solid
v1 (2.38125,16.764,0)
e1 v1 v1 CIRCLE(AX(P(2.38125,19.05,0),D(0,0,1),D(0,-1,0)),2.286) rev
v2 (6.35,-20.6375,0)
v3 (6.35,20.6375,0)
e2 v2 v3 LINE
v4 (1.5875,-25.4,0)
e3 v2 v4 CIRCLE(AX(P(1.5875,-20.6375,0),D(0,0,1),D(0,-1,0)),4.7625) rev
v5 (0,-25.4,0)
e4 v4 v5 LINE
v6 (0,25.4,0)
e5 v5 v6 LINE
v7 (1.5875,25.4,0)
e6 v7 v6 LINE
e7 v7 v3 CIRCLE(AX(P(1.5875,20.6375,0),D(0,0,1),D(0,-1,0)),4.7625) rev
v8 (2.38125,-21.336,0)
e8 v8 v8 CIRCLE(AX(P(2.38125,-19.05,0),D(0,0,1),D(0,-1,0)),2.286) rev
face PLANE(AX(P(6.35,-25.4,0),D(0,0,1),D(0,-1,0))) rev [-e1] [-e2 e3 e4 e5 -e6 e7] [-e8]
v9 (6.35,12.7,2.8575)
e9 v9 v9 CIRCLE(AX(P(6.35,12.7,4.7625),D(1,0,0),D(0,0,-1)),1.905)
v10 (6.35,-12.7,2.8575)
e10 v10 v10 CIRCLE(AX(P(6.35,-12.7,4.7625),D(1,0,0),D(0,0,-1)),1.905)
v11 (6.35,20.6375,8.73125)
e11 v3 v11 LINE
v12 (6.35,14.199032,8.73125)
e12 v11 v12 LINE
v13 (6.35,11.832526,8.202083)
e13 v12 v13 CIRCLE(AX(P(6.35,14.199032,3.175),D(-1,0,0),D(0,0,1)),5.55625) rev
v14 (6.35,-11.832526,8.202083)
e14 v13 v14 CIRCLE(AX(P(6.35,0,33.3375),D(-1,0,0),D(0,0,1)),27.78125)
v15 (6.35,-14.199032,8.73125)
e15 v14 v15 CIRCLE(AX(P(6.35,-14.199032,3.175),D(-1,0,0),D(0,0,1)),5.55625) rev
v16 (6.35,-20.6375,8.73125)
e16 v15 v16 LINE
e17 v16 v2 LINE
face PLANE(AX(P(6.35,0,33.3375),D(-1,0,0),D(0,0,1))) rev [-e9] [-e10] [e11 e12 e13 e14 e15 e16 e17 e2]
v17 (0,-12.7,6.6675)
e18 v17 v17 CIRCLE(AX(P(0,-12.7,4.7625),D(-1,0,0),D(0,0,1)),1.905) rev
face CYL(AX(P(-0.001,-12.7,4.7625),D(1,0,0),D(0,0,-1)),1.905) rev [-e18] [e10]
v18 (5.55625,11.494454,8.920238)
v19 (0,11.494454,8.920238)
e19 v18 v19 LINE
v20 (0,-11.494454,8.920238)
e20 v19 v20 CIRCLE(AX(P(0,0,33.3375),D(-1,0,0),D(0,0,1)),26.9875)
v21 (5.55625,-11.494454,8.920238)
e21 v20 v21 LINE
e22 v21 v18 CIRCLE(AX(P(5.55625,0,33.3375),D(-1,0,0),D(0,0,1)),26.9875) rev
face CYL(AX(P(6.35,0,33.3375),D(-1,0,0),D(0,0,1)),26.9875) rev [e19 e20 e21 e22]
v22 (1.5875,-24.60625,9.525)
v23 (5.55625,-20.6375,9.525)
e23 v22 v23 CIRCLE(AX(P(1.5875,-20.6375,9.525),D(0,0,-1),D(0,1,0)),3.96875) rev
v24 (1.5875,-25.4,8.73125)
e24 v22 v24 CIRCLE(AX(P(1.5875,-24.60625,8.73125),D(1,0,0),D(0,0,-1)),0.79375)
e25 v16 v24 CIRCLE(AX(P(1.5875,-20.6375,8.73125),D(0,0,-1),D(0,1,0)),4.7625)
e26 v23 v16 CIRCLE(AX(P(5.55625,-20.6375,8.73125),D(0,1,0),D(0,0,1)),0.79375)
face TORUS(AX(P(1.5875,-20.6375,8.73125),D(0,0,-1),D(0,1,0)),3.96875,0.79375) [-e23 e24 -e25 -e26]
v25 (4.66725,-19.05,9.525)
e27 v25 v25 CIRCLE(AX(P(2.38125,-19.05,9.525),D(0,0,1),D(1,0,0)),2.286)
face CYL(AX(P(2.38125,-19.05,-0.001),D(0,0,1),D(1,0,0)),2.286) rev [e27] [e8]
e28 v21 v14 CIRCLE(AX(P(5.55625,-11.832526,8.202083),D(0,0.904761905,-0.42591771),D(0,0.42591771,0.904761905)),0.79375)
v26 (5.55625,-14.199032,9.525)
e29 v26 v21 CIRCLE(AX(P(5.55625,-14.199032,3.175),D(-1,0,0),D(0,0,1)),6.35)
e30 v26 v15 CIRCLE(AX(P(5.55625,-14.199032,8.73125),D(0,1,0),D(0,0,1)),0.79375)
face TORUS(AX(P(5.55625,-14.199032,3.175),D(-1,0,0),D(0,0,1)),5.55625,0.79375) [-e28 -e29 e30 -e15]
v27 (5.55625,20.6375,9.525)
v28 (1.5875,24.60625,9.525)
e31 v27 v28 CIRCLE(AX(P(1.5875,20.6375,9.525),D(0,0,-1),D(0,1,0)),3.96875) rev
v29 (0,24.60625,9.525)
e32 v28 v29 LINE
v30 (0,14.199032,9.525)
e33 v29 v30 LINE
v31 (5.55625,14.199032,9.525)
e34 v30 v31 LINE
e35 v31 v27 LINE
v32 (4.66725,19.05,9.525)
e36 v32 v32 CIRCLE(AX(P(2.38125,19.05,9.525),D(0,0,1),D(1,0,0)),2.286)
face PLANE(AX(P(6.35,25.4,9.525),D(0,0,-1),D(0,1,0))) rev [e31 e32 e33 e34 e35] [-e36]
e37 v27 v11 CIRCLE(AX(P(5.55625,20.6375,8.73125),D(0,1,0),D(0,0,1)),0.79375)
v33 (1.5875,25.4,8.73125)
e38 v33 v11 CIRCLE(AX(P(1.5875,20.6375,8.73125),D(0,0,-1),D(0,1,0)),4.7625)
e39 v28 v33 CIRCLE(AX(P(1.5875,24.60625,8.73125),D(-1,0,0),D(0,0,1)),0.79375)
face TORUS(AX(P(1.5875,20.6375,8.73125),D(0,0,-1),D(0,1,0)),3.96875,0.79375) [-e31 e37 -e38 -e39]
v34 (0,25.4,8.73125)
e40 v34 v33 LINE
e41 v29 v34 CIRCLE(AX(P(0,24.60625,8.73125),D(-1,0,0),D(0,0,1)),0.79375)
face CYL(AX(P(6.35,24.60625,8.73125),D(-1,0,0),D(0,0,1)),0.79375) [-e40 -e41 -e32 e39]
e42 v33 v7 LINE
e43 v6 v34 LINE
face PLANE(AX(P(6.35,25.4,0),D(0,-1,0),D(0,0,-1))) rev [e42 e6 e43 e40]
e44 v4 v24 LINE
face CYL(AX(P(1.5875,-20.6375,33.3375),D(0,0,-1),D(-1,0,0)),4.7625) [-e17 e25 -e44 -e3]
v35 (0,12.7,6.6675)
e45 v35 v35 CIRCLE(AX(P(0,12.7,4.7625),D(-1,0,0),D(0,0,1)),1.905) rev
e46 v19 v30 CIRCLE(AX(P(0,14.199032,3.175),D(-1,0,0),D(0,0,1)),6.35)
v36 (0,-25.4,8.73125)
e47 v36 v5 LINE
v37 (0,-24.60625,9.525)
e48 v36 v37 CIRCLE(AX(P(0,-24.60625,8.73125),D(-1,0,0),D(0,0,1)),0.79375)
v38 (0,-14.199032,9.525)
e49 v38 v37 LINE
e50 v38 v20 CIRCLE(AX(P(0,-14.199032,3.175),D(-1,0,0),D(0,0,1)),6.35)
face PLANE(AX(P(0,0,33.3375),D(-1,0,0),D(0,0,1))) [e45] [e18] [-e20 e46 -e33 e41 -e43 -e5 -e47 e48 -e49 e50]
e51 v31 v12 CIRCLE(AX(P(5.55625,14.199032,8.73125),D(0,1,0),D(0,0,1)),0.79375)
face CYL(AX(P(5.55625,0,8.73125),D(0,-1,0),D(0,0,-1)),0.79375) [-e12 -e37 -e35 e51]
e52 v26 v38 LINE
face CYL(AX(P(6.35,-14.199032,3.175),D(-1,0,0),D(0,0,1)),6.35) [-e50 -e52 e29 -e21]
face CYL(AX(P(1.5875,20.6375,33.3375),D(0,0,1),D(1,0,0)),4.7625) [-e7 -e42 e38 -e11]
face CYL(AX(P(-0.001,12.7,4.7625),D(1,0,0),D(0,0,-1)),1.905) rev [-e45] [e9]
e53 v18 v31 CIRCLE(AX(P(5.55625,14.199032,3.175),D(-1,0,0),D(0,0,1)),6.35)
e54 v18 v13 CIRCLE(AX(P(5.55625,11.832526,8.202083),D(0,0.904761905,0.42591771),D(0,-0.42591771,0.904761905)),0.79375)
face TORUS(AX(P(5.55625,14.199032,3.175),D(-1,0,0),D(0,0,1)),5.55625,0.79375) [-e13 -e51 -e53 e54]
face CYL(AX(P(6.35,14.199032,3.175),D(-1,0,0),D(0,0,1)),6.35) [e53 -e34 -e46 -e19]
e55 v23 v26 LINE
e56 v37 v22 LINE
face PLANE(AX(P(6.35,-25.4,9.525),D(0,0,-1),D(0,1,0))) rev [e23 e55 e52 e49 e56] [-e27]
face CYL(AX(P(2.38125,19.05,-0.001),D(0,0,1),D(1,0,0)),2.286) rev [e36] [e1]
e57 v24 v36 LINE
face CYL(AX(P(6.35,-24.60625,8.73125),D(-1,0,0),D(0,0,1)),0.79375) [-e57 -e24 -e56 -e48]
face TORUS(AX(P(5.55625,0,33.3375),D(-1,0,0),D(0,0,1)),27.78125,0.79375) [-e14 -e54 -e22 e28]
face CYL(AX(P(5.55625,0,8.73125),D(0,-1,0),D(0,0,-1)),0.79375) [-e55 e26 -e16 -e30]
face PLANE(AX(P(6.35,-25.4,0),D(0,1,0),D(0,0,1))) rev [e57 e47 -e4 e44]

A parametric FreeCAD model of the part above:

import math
import FreeCAD as App
import Part
import Sketcher

V = App.Vector
Q = App.Units.Quantity


def edges_at(feature, points):
    """Names of the edges that pass closest to the given points."""
    edges = feature.Shape.Edges
    near = lambda p: min(range(len(edges)), key=lambda i: edges[i].distToShape(Part.Vertex(*p))[0])
    return sorted({f"Edge{near(p) + 1}" for p in points})

doc = App.newDocument("Part")
body = doc.addObject("PartDesign::Body", "Body")

sketch1 = body.newObject("Sketcher::SketchObject", "Sketch")
sketch1.AttachmentSupport = (doc.getObject("YZ_Plane"), [""])
sketch1.MapMode = "FlatFace"
sketch1.addGeometry(Part.LineSegment(V(-25.4, 0, 0), V(25.4, 0, 0)), False)
sketch1.addGeometry(Part.LineSegment(V(25.4, 0, 0), V(25.4, 9.525, 0)), False)
sketch1.addGeometry(Part.LineSegment(V(25.4, 9.525, 0), V(12.7, 9.525, 0)), False)
sketch1.addGeometry(Part.ArcOfCircle(Part.Circle(V(0, 33.3375, 0), V(0, 0, 1), 26.9875), math.radians(-118.072487), math.radians(-61.927513)), False)
sketch1.addGeometry(Part.LineSegment(V(-12.7, 9.525, 0), V(-25.4, 9.525, 0)), False)
sketch1.addGeometry(Part.LineSegment(V(-25.4, 9.525, 0), V(-25.4, 0, 0)), False)
sketch1.addConstraint(Sketcher.Constraint("Coincident", 0, 2, 1, 1))
sketch1.addConstraint(Sketcher.Constraint("Coincident", 1, 2, 2, 1))
sketch1.addConstraint(Sketcher.Constraint("Coincident", 2, 2, 3, 2))
sketch1.addConstraint(Sketcher.Constraint("Coincident", 3, 1, 4, 1))
sketch1.addConstraint(Sketcher.Constraint("Coincident", 4, 2, 5, 1))
sketch1.addConstraint(Sketcher.Constraint("Coincident", 5, 2, 0, 1))
sketch1.addConstraint(Sketcher.Constraint("Horizontal", 0))
sketch1.addConstraint(Sketcher.Constraint("Vertical", 1))
sketch1.addConstraint(Sketcher.Constraint("Horizontal", 2))
sketch1.addConstraint(Sketcher.Constraint("Horizontal", 4))
sketch1.addConstraint(Sketcher.Constraint("Vertical", 5))
sketch1.addConstraint(Sketcher.Constraint("Symmetric", 0, 2, 5, 2, -1, 1))
sketch1.addConstraint(Sketcher.Constraint("Symmetric", 2, 2, 3, 1, -2))
sketch1.addConstraint(Sketcher.Constraint("DistanceX", 0, 1, 0, 2, Q("2 in")))
sketch1.addConstraint(Sketcher.Constraint("DistanceX", 2, 2, 2, 1, Q("0.5 in")))
sketch1.addConstraint(Sketcher.Constraint("Radius", 3, Q("1.0625 in")))
sketch1.addConstraint(Sketcher.Constraint("DistanceY", 1, 1, 1, 2, Q("0.375 in")))
pad1 = body.newObject("PartDesign::Pad", "Pad")
pad1.Profile = sketch1
pad1.Length = Q("0.25 in")

sketch2 = body.newObject("Sketcher::SketchObject", "Sketch001")
sketch2.AttachmentSupport = (doc.getObject("XY_Plane"), [""])
sketch2.MapMode = "FlatFace"
sketch2.AttachmentOffset = App.Placement(V(0, 0, 0.375 * 25.4), App.Rotation())
sketch2.addGeometry(Part.Circle(V(2.38125, 19.05, 0), V(0, 0, 1), 2.286), False)
sketch2.addConstraint(Sketcher.Constraint("Diameter", 0, Q("0.18 in")))
sketch2.addConstraint(Sketcher.Constraint("DistanceY", -1, 1, 0, 3, Q("0.75 in")))
sketch2.addConstraint(Sketcher.Constraint("DistanceX", -1, 1, 0, 3, Q("0.09375 in")))
pocket1 = body.newObject("PartDesign::Pocket", "Pocket")
pocket1.Profile = sketch2
pocket1.Type = "UpToFirst"

sketch3 = body.newObject("Sketcher::SketchObject", "Sketch002")
sketch3.AttachmentSupport = (doc.getObject("XY_Plane"), [""])
sketch3.MapMode = "FlatFace"
sketch3.AttachmentOffset = App.Placement(V(0, 0, 0.375 * 25.4), App.Rotation())
sketch3.addGeometry(Part.Circle(V(2.38125, -19.05, 0), V(0, 0, 1), 2.286), False)
sketch3.addConstraint(Sketcher.Constraint("Diameter", 0, Q("0.18 in")))
sketch3.addConstraint(Sketcher.Constraint("DistanceY", 0, 3, -1, 1, Q("0.75 in")))
sketch3.addConstraint(Sketcher.Constraint("DistanceX", -1, 1, 0, 3, Q("0.09375 in")))
pocket2 = body.newObject("PartDesign::Pocket", "Pocket001")
pocket2.Profile = sketch3
pocket2.Type = "UpToFirst"

sketch4 = body.newObject("Sketcher::SketchObject", "Sketch003")
sketch4.AttachmentSupport = (doc.getObject("YZ_Plane"), [""])
sketch4.MapMode = "FlatFace"
sketch4.AttachmentOffset = App.Placement(V(0, 0, 0.25 * 25.4), App.Rotation())
sketch4.addGeometry(Part.Circle(V(12.7, 4.7625, 0), V(0, 0, 1), 1.905), False)
sketch4.addConstraint(Sketcher.Constraint("Diameter", 0, Q("0.15 in")))
sketch4.addConstraint(Sketcher.Constraint("DistanceX", -1, 1, 0, 3, Q("0.5 in")))
sketch4.addConstraint(Sketcher.Constraint("DistanceY", -1, 1, 0, 3, Q("0.1875 in")))
pocket3 = body.newObject("PartDesign::Pocket", "Pocket002")
pocket3.Profile = sketch4
pocket3.Type = "UpToFirst"

sketch5 = body.newObject("Sketcher::SketchObject", "Sketch004")
sketch5.AttachmentSupport = (doc.getObject("YZ_Plane"), [""])
sketch5.MapMode = "FlatFace"
sketch5.AttachmentOffset = App.Placement(V(0, 0, 0.25 * 25.4), App.Rotation())
sketch5.addGeometry(Part.Circle(V(-12.7, 4.7625, 0), V(0, 0, 1), 1.905), False)
sketch5.addConstraint(Sketcher.Constraint("Diameter", 0, Q("0.15 in")))
sketch5.addConstraint(Sketcher.Constraint("DistanceX", 0, 3, -1, 1, Q("0.5 in")))
sketch5.addConstraint(Sketcher.Constraint("DistanceY", -1, 1, 0, 3, Q("0.1875 in")))
pocket4 = body.newObject("PartDesign::Pocket", "Pocket003")
pocket4.Profile = sketch5
pocket4.Type = "UpToFirst"
doc.recompute()

fillet = body.newObject("PartDesign::Fillet", "Fillet")
fillet.Base = (pocket4, edges_at(pocket4, [(6.35, 25.4, 4.763), (6.35, -25.4, 4.763)]))
fillet.Radius = Q("0.1875 in")
doc.recompute()

fillet2 = body.newObject("PartDesign::Fillet", "Fillet001")
fillet2.Base = (fillet, edges_at(fillet, [(3.175, -12.7, 9.525), (3.175, 12.7, 9.525)]))
fillet2.Radius = Q("0.25 in")
doc.recompute()

fillet3 = body.newObject("PartDesign::Fillet", "Fillet002")
fillet3.Base = (fillet2, edges_at(fillet2, [
    (6.35, 17.418, 9.525),
    (0.794, -25.4, 9.525),
    (4.955, -24.005, 9.525),
    (0.794, 25.4, 9.525),
    (4.955, 24.005, 9.525),
    (6.35, -17.418, 9.525),
    (6.35, 0, 6.35),
    (6.35, 12.813, 9.372),
    (6.35, -12.813, 9.372),
]))
fillet3.Radius = Q("0.03125 in")

doc.recompute()
